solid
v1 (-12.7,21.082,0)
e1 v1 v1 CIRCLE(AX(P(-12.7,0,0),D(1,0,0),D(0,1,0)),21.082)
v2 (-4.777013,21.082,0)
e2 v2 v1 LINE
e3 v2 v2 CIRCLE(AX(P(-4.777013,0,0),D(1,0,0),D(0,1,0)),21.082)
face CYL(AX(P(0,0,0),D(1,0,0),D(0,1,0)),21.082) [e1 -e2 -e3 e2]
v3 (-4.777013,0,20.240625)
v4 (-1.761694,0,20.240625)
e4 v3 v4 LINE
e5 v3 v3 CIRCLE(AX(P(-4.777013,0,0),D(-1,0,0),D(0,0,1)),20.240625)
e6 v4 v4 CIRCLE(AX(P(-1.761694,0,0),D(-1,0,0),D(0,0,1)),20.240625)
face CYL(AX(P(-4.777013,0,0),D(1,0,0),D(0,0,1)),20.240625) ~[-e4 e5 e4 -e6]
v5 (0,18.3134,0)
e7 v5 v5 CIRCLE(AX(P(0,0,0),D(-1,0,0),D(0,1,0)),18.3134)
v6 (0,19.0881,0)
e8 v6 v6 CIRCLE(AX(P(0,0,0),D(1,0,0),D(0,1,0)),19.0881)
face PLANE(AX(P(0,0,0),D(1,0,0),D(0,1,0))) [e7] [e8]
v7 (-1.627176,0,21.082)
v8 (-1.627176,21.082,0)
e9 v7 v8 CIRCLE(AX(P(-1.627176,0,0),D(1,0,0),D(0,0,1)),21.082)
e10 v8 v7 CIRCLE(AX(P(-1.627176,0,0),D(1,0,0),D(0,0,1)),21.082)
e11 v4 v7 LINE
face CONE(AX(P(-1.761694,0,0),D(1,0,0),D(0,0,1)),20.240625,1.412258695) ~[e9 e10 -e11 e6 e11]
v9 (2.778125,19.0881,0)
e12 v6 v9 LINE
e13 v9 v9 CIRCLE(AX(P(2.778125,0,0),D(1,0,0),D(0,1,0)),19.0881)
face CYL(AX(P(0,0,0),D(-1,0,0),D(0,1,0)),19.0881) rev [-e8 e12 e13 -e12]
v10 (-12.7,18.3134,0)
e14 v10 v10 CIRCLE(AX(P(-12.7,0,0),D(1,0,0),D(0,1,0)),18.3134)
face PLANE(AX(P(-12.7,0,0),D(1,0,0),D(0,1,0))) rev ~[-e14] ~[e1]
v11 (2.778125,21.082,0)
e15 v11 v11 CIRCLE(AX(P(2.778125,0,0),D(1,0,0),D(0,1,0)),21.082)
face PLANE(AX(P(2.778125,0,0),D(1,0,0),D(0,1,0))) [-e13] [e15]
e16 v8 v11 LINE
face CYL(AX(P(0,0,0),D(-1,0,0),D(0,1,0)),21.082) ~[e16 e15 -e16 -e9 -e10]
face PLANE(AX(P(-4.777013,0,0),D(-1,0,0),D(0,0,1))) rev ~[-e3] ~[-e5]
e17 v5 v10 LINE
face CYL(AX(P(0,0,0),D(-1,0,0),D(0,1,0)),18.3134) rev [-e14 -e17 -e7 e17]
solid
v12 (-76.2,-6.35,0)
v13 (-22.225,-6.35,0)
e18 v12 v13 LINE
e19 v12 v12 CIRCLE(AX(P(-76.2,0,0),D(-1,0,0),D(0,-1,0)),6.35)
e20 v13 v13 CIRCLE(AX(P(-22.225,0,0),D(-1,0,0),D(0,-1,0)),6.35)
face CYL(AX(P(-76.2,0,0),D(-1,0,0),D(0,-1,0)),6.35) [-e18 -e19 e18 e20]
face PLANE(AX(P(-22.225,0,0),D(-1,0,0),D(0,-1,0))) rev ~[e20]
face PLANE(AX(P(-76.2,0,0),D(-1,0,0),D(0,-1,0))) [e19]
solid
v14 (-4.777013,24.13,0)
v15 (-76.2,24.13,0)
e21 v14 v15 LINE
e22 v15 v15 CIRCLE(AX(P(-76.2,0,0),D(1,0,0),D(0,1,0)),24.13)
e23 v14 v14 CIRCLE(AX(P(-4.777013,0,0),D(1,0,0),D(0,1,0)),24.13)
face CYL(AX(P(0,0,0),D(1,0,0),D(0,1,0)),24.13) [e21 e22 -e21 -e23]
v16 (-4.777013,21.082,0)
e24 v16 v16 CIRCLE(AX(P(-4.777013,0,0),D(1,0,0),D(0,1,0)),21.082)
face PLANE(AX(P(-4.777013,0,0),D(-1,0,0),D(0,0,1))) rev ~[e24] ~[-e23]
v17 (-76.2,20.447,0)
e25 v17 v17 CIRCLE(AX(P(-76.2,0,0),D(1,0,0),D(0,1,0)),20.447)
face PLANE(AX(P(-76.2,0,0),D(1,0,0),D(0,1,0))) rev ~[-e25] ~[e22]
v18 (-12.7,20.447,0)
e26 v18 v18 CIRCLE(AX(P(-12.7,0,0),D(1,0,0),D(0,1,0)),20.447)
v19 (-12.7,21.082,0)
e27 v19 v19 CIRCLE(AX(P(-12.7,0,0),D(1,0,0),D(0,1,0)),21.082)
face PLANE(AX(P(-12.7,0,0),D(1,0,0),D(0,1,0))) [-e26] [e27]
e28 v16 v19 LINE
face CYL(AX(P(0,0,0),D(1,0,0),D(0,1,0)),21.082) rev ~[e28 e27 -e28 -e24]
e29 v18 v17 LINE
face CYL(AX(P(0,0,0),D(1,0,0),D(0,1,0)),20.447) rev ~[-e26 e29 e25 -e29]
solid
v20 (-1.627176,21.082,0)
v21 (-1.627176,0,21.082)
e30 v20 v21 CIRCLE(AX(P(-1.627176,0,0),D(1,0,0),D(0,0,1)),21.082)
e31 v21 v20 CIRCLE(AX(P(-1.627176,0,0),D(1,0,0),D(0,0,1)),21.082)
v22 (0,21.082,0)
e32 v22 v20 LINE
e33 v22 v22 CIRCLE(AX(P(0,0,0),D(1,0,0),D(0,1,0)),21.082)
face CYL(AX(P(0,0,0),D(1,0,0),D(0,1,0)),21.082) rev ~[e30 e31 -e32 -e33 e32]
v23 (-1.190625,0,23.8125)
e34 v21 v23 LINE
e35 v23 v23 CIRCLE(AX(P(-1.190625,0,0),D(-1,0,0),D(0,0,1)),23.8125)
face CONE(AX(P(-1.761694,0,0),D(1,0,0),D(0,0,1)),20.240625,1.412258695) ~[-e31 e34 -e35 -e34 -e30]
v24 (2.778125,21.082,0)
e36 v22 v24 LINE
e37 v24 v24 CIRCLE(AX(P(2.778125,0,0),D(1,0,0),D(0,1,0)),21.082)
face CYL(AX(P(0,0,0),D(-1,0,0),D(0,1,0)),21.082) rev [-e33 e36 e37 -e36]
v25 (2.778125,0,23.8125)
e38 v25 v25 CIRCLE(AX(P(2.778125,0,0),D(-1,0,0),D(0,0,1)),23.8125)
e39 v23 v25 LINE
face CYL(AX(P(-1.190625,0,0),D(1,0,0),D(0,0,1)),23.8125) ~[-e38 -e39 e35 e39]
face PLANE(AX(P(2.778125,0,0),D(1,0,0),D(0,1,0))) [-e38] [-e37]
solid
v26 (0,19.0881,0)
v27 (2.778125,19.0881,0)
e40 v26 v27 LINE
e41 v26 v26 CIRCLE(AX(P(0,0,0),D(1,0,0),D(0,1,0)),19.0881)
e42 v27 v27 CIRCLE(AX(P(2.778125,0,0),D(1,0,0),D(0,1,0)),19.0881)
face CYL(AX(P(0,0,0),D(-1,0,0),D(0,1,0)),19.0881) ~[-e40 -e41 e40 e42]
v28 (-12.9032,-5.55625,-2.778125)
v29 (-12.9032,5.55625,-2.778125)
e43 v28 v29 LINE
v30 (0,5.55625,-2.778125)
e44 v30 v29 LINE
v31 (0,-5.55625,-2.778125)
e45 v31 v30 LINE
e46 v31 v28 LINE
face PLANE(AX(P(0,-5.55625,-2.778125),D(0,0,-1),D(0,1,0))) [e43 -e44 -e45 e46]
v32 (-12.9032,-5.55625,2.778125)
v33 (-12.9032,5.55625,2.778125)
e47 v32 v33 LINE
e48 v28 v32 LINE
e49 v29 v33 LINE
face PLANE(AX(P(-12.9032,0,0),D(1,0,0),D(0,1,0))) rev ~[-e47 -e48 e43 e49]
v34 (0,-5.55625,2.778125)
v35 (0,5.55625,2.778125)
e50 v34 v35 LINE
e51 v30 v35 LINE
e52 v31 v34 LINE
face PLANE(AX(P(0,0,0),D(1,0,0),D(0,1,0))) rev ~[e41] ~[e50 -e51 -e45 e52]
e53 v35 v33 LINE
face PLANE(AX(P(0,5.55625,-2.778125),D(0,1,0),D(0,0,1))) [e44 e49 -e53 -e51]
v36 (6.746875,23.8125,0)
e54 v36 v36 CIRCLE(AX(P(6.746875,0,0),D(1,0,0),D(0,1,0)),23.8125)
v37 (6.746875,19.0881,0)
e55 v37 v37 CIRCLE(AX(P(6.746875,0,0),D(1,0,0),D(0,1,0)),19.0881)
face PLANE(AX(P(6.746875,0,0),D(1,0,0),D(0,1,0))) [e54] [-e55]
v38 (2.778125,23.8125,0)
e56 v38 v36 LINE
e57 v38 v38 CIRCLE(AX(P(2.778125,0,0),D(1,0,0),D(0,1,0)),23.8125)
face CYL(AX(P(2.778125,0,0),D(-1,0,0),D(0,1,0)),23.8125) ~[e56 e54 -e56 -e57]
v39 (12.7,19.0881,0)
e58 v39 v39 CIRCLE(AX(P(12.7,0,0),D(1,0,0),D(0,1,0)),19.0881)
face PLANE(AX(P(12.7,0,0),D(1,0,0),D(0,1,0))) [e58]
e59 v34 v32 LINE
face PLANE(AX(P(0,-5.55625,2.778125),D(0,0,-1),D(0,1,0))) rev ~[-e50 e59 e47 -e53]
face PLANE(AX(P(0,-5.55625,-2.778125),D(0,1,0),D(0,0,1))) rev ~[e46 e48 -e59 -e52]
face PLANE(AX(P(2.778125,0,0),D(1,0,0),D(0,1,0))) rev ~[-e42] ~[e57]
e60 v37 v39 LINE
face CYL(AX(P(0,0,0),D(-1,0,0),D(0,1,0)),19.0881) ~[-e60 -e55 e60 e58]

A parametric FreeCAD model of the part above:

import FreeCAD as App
import Part
import Sketcher
from FreeCAD import Vector
Q = App.Units.Quantity

doc = App.newDocument("Part")
body = doc.addObject("PartDesign::Body", "Body")

sketch1 = body.newObject("Sketcher::SketchObject", "Sketch")
sketch1.AttachmentSupport = (doc.getObject("YZ_Plane"), [""])
sketch1.MapMode = "FlatFace"
sketch1.addGeometry([
    Part.LineSegment(Vector(-6, 3, 0), Vector(-6, -3, 0)),
    Part.LineSegment(Vector(-6, -3, 0), Vector(6, -3, 0)),
    Part.LineSegment(Vector(6, -3, 0), Vector(6, 3, 0)),
    Part.LineSegment(Vector(6, 3, 0), Vector(-6, 3, 0)),
], False)
sketch1.addConstraint([
    Sketcher.Constraint("Coincident", 0, 2, 1, 1),
    Sketcher.Constraint("Coincident", 1, 2, 2, 1),
    Sketcher.Constraint("Coincident", 2, 2, 3, 1),
    Sketcher.Constraint("Coincident", 3, 2, 0, 1),
    Sketcher.Constraint("Vertical", 0),
    Sketcher.Constraint("Horizontal", 1),
    Sketcher.Constraint("Vertical", 2),
    Sketcher.Constraint("Horizontal", 3),
    Sketcher.Constraint("Symmetric", 0, 2, 2, 2, -1, 1),
    Sketcher.Constraint("DistanceX", 1, 1, 1, 2, Q("0.4375 in")),
    Sketcher.Constraint("DistanceY", 0, 2, 0, 1, Q("0.21875 in")),
])
pad1 = body.newObject("PartDesign::Pad", "Pad")
pad1.Profile = sketch1
pad1.Length = Q("0.508 in")
pad1.Reversed = True

sketch2 = body.newObject("Sketcher::SketchObject", "Sketch001")
sketch2.AttachmentSupport = (doc.getObject("YZ_Plane"), [""])
sketch2.MapMode = "FlatFace"
sketch2.addGeometry(Part.Circle(Vector(0, 0, 0), Vector(0, 0, 1), 19), False)
sketch2.addConstraint([
    Sketcher.Constraint("Coincident", 0, 3, -1, 1),
    Sketcher.Constraint("Diameter", 0, Q("1.503 in")),
])
pad2 = body.newObject("PartDesign::Pad", "Pad001")
pad2.Profile = sketch2
pad2.Length = Q("0.5 in")

sketch3 = body.newObject("Sketcher::SketchObject", "Sketch002")
sketch3.AttachmentSupport = (doc.getObject("YZ_Plane"), [""])
sketch3.MapMode = "FlatFace"
sketch3.AttachmentOffset = App.Placement(Vector(0, 0, 0.109375 * 25.4), App.Rotation())
sketch3.addGeometry([
    Part.Circle(Vector(0, 0, 0), Vector(0, 0, 1), 24),
    Part.Circle(Vector(0, 0, 0), Vector(0, 0, 1), 19),
    Part.LineSegment(Vector(-6, 3, 0), Vector(-6, -3, 0)),
    Part.LineSegment(Vector(-6, -3, 0), Vector(6, -3, 0)),
    Part.LineSegment(Vector(6, -3, 0), Vector(6, 3, 0)),
    Part.LineSegment(Vector(6, 3, 0), Vector(-6, 3, 0)),
], False)
sketch3.addConstraint([
    Sketcher.Constraint("Coincident", 2, 2, 3, 1),
    Sketcher.Constraint("Coincident", 3, 2, 4, 1),
    Sketcher.Constraint("Coincident", 4, 2, 5, 1),
    Sketcher.Constraint("Coincident", 5, 2, 2, 1),
    Sketcher.Constraint("Vertical", 2),
    Sketcher.Constraint("Horizontal", 3),
    Sketcher.Constraint("Vertical", 4),
    Sketcher.Constraint("Horizontal", 5),
    Sketcher.Constraint("Coincident", 0, 3, -1, 1),
    Sketcher.Constraint("Coincident", 1, 3, -1, 1),
    Sketcher.Constraint("Symmetric", 2, 2, 4, 2, -1, 1),
    Sketcher.Constraint("Diameter", 0, Q("1.875 in")),
    Sketcher.Constraint("Diameter", 1, Q("1.503 in")),
    Sketcher.Constraint("DistanceX", 3, 1, 3, 2, Q("0.4375 in")),
    Sketcher.Constraint("DistanceY", 2, 2, 2, 1, Q("0.21875 in")),
])
pad3 = body.newObject("PartDesign::Pad", "Pad002")
pad3.Profile = sketch3
pad3.Length = Q("0.15625 in")
body2 = doc.addObject("PartDesign::Body", "Body001")

sketch4 = body2.newObject("Sketcher::SketchObject", "Sketch003")
sketch4.AttachmentSupport = (doc.getObject("YZ_Plane001"), [""])
sketch4.MapMode = "FlatFace"
sketch4.addGeometry([
    Part.Circle(Vector(0, 0, 0), Vector(0, 0, 1), 24),
    Part.Circle(Vector(0, 0, 0), Vector(0, 0, 1), 20),
], False)
sketch4.addConstraint([
    Sketcher.Constraint("Coincident", 0, 3, -1, 1),
    Sketcher.Constraint("Coincident", 1, 3, -1, 1),
    Sketcher.Constraint("Diameter", 0, Q("1.9 in")),
    Sketcher.Constraint("Diameter", 1, Q("1.61 in")),
])
pad4 = body2.newObject("PartDesign::Pad", "Pad003")
pad4.Profile = sketch4
pad4.Type = "TwoLengths"
pad4.Length = Q("3 in")
pad4.Length2 = Q("0.109375 in")
pad4.Reversed = True
body3 = doc.addObject("PartDesign::Body", "Body002")

sketch5 = body3.newObject("Sketcher::SketchObject", "Sketch004")
sketch5.AttachmentSupport = (doc.getObject("YZ_Plane002"), [""])
sketch5.MapMode = "FlatFace"
sketch5.addGeometry([
    Part.Circle(Vector(0, 0, 0), Vector(0, 0, 1), 21),
    Part.Circle(Vector(0, 0, 0), Vector(0, 0, 1), 18),
], False)
sketch5.addConstraint([
    Sketcher.Constraint("Coincident", 0, 3, -1, 1),
    Sketcher.Constraint("Coincident", 1, 3, -1, 1),
    Sketcher.Constraint("Diameter", 0, Q("1.66 in")),
    Sketcher.Constraint("Diameter", 1, Q("1.442 in")),
])
pad5 = body3.newObject("PartDesign::Pad", "Pad004")
pad5.Profile = sketch5
pad5.Type = "TwoLengths"
pad5.Length = Q("0.5 in")
pad5.Length2 = Q("0.109375 in")
pad5.Reversed = True
doc.recompute()

body4 = doc.addObject("PartDesign::Body", "Body003")
body4.BaseFeature = body3
boolean = body2.newObject("PartDesign::Boolean", "Boolean")
boolean.Type = "Cut"
boolean.addObjects([body4])
doc.recompute()
body5 = doc.addObject("PartDesign::Body", "Body004")

sketch6 = body5.newObject("Sketcher::SketchObject", "Sketch005")
sketch6.AttachmentSupport = (doc.getObject("XZ_Plane004"), [""])
sketch6.MapMode = "FlatFace"
sketch6.addGeometry([
    Part.LineSegment(Vector(-1.2, 23.8, 0), Vector(2.8, 23.8, 0)),
    Part.LineSegment(Vector(2.8, 23.8, 0), Vector(2.8, 26.6, 0)),
    Part.LineSegment(Vector(2.8, 26.6, 0), Vector(-4.8, 26.6, 0)),
    Part.LineSegment(Vector(-4.8, 26.6, 0), Vector(-4.8, 20.2, 0)),
    Part.LineSegment(Vector(-4.8, 20.2, 0), Vector(-1.8, 20.2, 0)),
    Part.LineSegment(Vector(-1.8, 20.2, 0), Vector(-1.2, 23.8, 0)),
], False)
sketch6.addConstraint([
    Sketcher.Constraint("Coincident", 0, 2, 1, 1),
    Sketcher.Constraint("Coincident", 1, 2, 2, 1),
    Sketcher.Constraint("Coincident", 2, 2, 3, 1),
    Sketcher.Constraint("Coincident", 3, 2, 4, 1),
    Sketcher.Constraint("Coincident", 4, 2, 5, 1),
    Sketcher.Constraint("Coincident", 5, 2, 0, 1),
    Sketcher.Constraint("Horizontal", 0),
    Sketcher.Constraint("Vertical", 1),
    Sketcher.Constraint("Horizontal", 2),
    Sketcher.Constraint("Vertical", 3),
    Sketcher.Constraint("Horizontal", 4),
    Sketcher.Constraint("DistanceY", 3, 2, 3, 1, Q("0.25 in")),
    Sketcher.Constraint("DistanceX", 0, 1, 0, 2, Q("0.15625 in")),
    Sketcher.Constraint("DistanceY", 1, 1, 1, 2, Q("0.109375 in")),
    Sketcher.Constraint("DistanceX", -1, 1, 0, 2, Q("0.109375 in")),
    Sketcher.Constraint("DistanceY", -1, 1, 0, 2, Q("0.9375 in")),
    Sketcher.Constraint("DistanceX", 2, 2, 2, 1, Q("7.555138 mm")),
    Sketcher.Constraint("DistanceX", 4, 1, 4, 2, Q("3.015319 mm")),
])
revolution = body5.newObject("PartDesign::Revolution", "Revolution")
revolution.Profile = sketch6
revolution.ReferenceAxis = (sketch6, ["H_Axis"])
revolution.Angle = 360
body2.AllowCompound = True
doc.recompute()

body6 = doc.addObject("PartDesign::Body", "Body005")
body6.BaseFeature = body5
boolean2 = body2.newObject("PartDesign::Boolean", "Boolean001")
boolean2.Type = "Cut"
boolean2.addObjects([body6])
doc.recompute()

boolean3 = body3.newObject("PartDesign::Boolean", "Boolean002")
boolean3.Type = "Cut"
boolean3.addObjects([body5])
doc.recompute()

body7 = doc.addObject("PartDesign::Body", "Body006")
body7.BaseFeature = body
boolean4 = body3.newObject("PartDesign::Boolean", "Boolean003")
boolean4.Type = "Cut"
boolean4.addObjects([body7])
doc.recompute()
body8 = doc.addObject("PartDesign::Body", "Body007")

sketch7 = body8.newObject("Sketcher::SketchObject", "Sketch006")
sketch7.AttachmentSupport = (doc.getObject("YZ_Plane007"), [""])
sketch7.MapMode = "FlatFace"
sketch7.AttachmentOffset = App.Placement(Vector(0, 0, -3 * 25.4), App.Rotation())
sketch7.addGeometry(Part.Circle(Vector(0, 0, 0), Vector(0, 0, 1), 6), False)
sketch7.addConstraint([
    Sketcher.Constraint("Coincident", 0, 3, -1, 1),
    Sketcher.Constraint("Diameter", 0, Q("0.5 in")),
])
pad6 = body8.newObject("PartDesign::Pad", "Pad005")
pad6.Profile = sketch7
pad6.Length = Q("2.125 in")

doc.recompute()
